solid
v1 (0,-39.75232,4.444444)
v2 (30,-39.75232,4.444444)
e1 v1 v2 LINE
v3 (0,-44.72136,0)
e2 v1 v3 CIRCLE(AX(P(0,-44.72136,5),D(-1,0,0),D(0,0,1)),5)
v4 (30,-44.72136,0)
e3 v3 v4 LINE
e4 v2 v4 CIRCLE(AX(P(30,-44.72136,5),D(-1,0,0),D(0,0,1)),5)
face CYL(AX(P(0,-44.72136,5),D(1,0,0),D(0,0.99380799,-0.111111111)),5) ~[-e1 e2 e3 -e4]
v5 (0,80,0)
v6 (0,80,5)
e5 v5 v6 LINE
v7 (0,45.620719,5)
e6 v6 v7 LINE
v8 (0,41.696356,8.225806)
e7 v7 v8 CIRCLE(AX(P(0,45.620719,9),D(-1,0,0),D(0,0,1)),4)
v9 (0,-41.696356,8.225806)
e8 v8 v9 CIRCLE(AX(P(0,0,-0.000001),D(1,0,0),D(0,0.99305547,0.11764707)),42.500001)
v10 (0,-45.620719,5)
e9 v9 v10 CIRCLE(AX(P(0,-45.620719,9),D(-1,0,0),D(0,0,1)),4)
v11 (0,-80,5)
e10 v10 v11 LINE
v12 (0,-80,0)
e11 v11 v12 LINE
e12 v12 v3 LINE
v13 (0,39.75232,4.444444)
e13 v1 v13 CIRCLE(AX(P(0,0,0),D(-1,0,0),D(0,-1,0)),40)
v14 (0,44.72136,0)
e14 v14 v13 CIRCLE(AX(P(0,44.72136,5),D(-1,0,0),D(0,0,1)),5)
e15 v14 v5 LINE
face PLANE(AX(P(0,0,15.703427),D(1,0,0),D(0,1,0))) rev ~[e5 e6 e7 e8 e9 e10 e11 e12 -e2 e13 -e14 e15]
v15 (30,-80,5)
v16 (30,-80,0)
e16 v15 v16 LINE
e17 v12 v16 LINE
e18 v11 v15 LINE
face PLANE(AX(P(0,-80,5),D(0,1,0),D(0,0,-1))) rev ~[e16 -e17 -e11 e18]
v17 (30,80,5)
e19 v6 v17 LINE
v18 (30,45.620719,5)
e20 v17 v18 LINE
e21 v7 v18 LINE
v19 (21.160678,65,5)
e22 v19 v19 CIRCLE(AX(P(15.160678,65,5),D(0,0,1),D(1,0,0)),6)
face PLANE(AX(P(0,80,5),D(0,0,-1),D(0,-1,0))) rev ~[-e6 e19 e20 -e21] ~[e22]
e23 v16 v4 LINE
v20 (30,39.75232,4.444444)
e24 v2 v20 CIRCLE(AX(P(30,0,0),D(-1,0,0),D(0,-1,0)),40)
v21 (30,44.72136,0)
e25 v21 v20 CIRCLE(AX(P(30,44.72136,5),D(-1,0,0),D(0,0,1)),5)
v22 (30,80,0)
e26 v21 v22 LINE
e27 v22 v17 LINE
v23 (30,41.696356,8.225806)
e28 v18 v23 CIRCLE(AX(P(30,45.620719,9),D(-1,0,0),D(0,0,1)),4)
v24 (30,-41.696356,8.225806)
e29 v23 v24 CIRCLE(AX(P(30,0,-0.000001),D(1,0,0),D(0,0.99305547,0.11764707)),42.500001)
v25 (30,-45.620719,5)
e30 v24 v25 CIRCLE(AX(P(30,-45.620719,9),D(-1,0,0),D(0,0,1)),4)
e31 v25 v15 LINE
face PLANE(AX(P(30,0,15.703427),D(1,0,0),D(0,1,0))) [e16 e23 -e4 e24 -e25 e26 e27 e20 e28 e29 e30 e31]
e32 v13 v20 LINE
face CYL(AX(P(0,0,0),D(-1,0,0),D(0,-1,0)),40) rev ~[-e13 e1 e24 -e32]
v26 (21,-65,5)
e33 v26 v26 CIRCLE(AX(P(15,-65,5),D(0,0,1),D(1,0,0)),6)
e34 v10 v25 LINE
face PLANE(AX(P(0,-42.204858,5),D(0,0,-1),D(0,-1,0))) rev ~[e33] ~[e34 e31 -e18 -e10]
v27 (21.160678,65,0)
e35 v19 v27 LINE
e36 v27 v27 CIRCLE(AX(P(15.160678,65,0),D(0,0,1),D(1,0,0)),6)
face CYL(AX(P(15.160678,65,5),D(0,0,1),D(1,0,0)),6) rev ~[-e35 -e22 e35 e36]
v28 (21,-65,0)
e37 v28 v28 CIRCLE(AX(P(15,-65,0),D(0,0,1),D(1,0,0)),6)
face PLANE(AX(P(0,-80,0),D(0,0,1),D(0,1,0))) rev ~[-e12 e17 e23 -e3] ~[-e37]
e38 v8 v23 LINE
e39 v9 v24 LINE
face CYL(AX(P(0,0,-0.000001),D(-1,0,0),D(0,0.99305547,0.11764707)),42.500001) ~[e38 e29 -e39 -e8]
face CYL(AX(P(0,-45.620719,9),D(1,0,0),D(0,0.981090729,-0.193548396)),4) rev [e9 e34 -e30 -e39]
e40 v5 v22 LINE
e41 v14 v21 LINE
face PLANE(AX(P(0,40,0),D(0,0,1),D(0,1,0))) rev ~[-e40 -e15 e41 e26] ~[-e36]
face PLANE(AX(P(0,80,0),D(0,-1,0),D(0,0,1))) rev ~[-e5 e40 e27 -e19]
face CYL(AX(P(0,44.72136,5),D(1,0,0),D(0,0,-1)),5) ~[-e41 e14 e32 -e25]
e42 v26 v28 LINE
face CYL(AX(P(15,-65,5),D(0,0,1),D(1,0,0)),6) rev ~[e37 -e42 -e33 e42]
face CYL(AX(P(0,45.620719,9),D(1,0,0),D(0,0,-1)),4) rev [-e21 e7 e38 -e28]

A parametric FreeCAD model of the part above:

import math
import FreeCAD as App
import Part
import Sketcher


def edges_at(feature, points):
    """Names of the edges that pass closest to the given points."""
    edges = feature.Shape.Edges
    near = lambda p: min(range(len(edges)), key=lambda i: edges[i].distToShape(Part.Vertex(*p))[0])
    return sorted({f"Edge{near(p) + 1}" for p in points})

doc = App.newDocument("Part")
body = doc.addObject("PartDesign::Body", "Body")

sketch1 = doc.addObject("Sketcher::SketchObject", "Sketch")
body.addObject(sketch1)
sketch1.AttachmentSupport = (doc.YZ_Plane, [""])
sketch1.MapMode = "FlatFace"
sketch1.addGeometry(Part.LineSegment(App.Vector(80, 5, 0), App.Vector(42, 5, 0)), False)
sketch1.addGeometry(Part.ArcOfCircle(Part.Circle(App.Vector(0, 0, 0), App.Vector(0, 0, 1), 43), math.radians(7), math.radians(173)), False)
sketch1.addGeometry(Part.LineSegment(App.Vector(-42, 5, 0), App.Vector(-80, 5, 0)), False)
sketch1.addGeometry(Part.LineSegment(App.Vector(-80, 5, 0), App.Vector(-80, 0, 0)), False)
sketch1.addGeometry(Part.LineSegment(App.Vector(-80, 0, 0), App.Vector(-40, 0, 0)), False)
sketch1.addGeometry(Part.ArcOfCircle(Part.Circle(App.Vector(0, 0, 0), App.Vector(0, 0, 1), 40), math.radians(0), math.radians(180)), False)
sketch1.addGeometry(Part.LineSegment(App.Vector(40, 0, 0), App.Vector(80, 0, 0)), False)
sketch1.addGeometry(Part.LineSegment(App.Vector(80, 0, 0), App.Vector(80, 5, 0)), False)
sketch1.addConstraint(Sketcher.Constraint("Coincident", 0, 2, 1, 1))
sketch1.addConstraint(Sketcher.Constraint("Coincident", 1, 2, 2, 1))
sketch1.addConstraint(Sketcher.Constraint("Coincident", 2, 2, 3, 1))
sketch1.addConstraint(Sketcher.Constraint("Coincident", 3, 2, 4, 1))
sketch1.addConstraint(Sketcher.Constraint("Coincident", 4, 2, 5, 2))
sketch1.addConstraint(Sketcher.Constraint("Coincident", 5, 1, 6, 1))
sketch1.addConstraint(Sketcher.Constraint("Coincident", 6, 2, 7, 1))
sketch1.addConstraint(Sketcher.Constraint("Coincident", 7, 2, 0, 1))
sketch1.addConstraint(Sketcher.Constraint("Horizontal", 0))
sketch1.addConstraint(Sketcher.Constraint("Horizontal", 2))
sketch1.addConstraint(Sketcher.Constraint("Vertical", 3))
sketch1.addConstraint(Sketcher.Constraint("Horizontal", 4))
sketch1.addConstraint(Sketcher.Constraint("Horizontal", 6))
sketch1.addConstraint(Sketcher.Constraint("Vertical", 7))
sketch1.addConstraint(Sketcher.Constraint("Coincident", 1, 3, -1, 1))
sketch1.addConstraint(Sketcher.Constraint("Coincident", 5, 3, -1, 1))
sketch1.addConstraint(Sketcher.Constraint("Symmetric", 3, 2, 6, 2, -1, 1))
sketch1.addConstraint(Sketcher.Constraint("PointOnObject", 3, 2, -1))
sketch1.addConstraint(Sketcher.Constraint("Horizontal", 0, 2, 1, 2))
sketch1.addConstraint(Sketcher.Constraint("Radius", 5, 40.0))
sketch1.addConstraint(Sketcher.Constraint("Radius", 1, 42.500001))
sketch1.addConstraint(Sketcher.Constraint("DistanceX", 4, 1, 4, 2, 40.0))
sketch1.addConstraint(Sketcher.Constraint("DistanceY", 3, 2, 3, 1, 5.0))
pad1 = doc.addObject("PartDesign::Pad", "Pad")
body.addObject(pad1)
pad1.Profile = sketch1
pad1.Length = 30
doc.recompute()

fillet = doc.addObject("PartDesign::Fillet", "Fillet")
body.addObject(fillet)
fillet.Base = (pad1, edges_at(pad1, [(15, -42.205, 5), (15, 42.205, 5)]))
fillet.Radius = 4
doc.recompute()

fillet2 = doc.addObject("PartDesign::Fillet", "Fillet001")
body.addObject(fillet2)
fillet2.Base = (fillet, edges_at(fillet, [(15, -40, 0), (15, 40, 0)]))
fillet2.Radius = 5

sketch2 = doc.addObject("Sketcher::SketchObject", "Sketch001")
body.addObject(sketch2)
sketch2.AttachmentSupport = (doc.XY_Plane, [""])
sketch2.MapMode = "FlatFace"
sketch2.AttachmentOffset = App.Placement(App.Vector(0, 0, 5), App.Rotation())
sketch2.addGeometry(Part.Circle(App.Vector(15, -65, 0), App.Vector(0, 0, 1), 6), False)
sketch2.addGeometry(Part.Circle(App.Vector(15, 65, 0), App.Vector(0, 0, 1), 6), False)
sketch2.addConstraint(Sketcher.Constraint("Equal", 0, 1))
sketch2.addConstraint(Sketcher.Constraint("Diameter", 0, 12.0))
sketch2.addConstraint(Sketcher.Constraint("DistanceX", -1, 1, 0, 3, 15.0))
sketch2.addConstraint(Sketcher.Constraint("DistanceY", 0, 3, -1, 1, 65.0))
sketch2.addConstraint(Sketcher.Constraint("DistanceY", -1, 1, 1, 3, 65.0))
sketch2.addConstraint(Sketcher.Constraint("DistanceX", -1, 1, 1, 3, 15.160678))
pocket1 = doc.addObject("PartDesign::Pocket", "Pocket")
body.addObject(pocket1)
pocket1.Profile = sketch2
pocket1.Length = 25

doc.recompute()
